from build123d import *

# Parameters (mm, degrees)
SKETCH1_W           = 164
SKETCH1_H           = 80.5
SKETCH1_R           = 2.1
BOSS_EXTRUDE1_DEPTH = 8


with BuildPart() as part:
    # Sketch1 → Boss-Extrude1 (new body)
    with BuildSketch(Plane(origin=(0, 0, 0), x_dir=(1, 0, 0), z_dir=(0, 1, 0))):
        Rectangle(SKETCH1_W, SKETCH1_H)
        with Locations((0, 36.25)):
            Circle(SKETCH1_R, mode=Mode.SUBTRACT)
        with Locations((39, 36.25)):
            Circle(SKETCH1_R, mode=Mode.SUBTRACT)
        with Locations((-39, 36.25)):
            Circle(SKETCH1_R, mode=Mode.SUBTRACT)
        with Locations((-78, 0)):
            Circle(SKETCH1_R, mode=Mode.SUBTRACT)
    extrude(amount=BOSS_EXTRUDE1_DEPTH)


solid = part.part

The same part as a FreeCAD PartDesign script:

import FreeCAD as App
import Part
import Sketcher

V = App.Vector


def add_polygon(sketch, points):
    """Adds a closed chain of lines whose ends are joined by coincident constraints."""
    first, n = sketch.GeometryCount, len(points)
    for a, b in zip(points, points[1:] + points[:1]):
        sketch.addGeometry(Part.LineSegment(App.Vector(*a, 0), App.Vector(*b, 0)), False)
    for i in range(n):
        sketch.addConstraint(Sketcher.Constraint("Coincident", first + i, 2, first + (i + 1) % n, 1))

doc = App.newDocument("Part")
body = doc.addObject("PartDesign::Body", "Body")

# Sketch on XZ plane
sketch1 = body.newObject("Sketcher::SketchObject", "Sketch")
sketch1.AttachmentSupport = (doc.getObject("XZ_Plane"), [""])
sketch1.MapMode = "FlatFace"
add_polygon(sketch1, [(-82, -40.2), (-82, 40.2), (82, 40.2), (82, -40.2)])  # lines 0-3
sketch1.addGeometry(Part.Circle(V(-78, 0, 0), V(0, 0, 1), 2.1), False)  # 4
sketch1.addGeometry(Part.Circle(V(-39, -36.2, 0), V(0, 0, 1), 2.1), False)  # 5
sketch1.addGeometry(Part.Circle(V(0, -36.2, 0), V(0, 0, 1), 2.1), False)  # 6
sketch1.addGeometry(Part.Circle(V(39, -36.2, 0), V(0, 0, 1), 2.1), False)  # 7
sketch1.addConstraint(Sketcher.Constraint("Vertical", 0))
sketch1.addConstraint(Sketcher.Constraint("Horizontal", 1))
sketch1.addConstraint(Sketcher.Constraint("Vertical", 2))
sketch1.addConstraint(Sketcher.Constraint("Horizontal", 3))
sketch1.addConstraint(Sketcher.Constraint("Equal", 4, 5))
sketch1.addConstraint(Sketcher.Constraint("Equal", 5, 6))
sketch1.addConstraint(Sketcher.Constraint("Equal", 6, 7))
sketch1.addConstraint(Sketcher.Constraint("Symmetric", 0, 2, 2, 2, -1, 1))
sketch1.addConstraint(Sketcher.Constraint("Symmetric", 5, 3, 7, 3, -2))
sketch1.addConstraint(Sketcher.Constraint("PointOnObject", 4, 3, -1))
sketch1.addConstraint(Sketcher.Constraint("PointOnObject", 6, 3, -2))
sketch1.addConstraint(Sketcher.Constraint("Horizontal", 5, 3, 6, 3))
sketch1.addConstraint(Sketcher.Constraint("Diameter", 4, 4.2))
sketch1.addConstraint(Sketcher.Constraint("DistanceX", 1, 1, 1, 2, 164.0))
sketch1.addConstraint(Sketcher.Constraint("DistanceY", 0, 1, 0, 2, 80.5))
sketch1.addConstraint(Sketcher.Constraint("DistanceX", 4, 3, -1, 1, 78.0))
sketch1.addConstraint(Sketcher.Constraint("DistanceX", 5, 3, -1, 1, 39.0))
sketch1.addConstraint(Sketcher.Constraint("DistanceY", 2, 2, 7, 3, 4.0))
pad1 = body.newObject("PartDesign::Pad", "Pad")
pad1.Profile = sketch1
pad1.Length = 8
pad1.Reversed = True

doc.recompute()
